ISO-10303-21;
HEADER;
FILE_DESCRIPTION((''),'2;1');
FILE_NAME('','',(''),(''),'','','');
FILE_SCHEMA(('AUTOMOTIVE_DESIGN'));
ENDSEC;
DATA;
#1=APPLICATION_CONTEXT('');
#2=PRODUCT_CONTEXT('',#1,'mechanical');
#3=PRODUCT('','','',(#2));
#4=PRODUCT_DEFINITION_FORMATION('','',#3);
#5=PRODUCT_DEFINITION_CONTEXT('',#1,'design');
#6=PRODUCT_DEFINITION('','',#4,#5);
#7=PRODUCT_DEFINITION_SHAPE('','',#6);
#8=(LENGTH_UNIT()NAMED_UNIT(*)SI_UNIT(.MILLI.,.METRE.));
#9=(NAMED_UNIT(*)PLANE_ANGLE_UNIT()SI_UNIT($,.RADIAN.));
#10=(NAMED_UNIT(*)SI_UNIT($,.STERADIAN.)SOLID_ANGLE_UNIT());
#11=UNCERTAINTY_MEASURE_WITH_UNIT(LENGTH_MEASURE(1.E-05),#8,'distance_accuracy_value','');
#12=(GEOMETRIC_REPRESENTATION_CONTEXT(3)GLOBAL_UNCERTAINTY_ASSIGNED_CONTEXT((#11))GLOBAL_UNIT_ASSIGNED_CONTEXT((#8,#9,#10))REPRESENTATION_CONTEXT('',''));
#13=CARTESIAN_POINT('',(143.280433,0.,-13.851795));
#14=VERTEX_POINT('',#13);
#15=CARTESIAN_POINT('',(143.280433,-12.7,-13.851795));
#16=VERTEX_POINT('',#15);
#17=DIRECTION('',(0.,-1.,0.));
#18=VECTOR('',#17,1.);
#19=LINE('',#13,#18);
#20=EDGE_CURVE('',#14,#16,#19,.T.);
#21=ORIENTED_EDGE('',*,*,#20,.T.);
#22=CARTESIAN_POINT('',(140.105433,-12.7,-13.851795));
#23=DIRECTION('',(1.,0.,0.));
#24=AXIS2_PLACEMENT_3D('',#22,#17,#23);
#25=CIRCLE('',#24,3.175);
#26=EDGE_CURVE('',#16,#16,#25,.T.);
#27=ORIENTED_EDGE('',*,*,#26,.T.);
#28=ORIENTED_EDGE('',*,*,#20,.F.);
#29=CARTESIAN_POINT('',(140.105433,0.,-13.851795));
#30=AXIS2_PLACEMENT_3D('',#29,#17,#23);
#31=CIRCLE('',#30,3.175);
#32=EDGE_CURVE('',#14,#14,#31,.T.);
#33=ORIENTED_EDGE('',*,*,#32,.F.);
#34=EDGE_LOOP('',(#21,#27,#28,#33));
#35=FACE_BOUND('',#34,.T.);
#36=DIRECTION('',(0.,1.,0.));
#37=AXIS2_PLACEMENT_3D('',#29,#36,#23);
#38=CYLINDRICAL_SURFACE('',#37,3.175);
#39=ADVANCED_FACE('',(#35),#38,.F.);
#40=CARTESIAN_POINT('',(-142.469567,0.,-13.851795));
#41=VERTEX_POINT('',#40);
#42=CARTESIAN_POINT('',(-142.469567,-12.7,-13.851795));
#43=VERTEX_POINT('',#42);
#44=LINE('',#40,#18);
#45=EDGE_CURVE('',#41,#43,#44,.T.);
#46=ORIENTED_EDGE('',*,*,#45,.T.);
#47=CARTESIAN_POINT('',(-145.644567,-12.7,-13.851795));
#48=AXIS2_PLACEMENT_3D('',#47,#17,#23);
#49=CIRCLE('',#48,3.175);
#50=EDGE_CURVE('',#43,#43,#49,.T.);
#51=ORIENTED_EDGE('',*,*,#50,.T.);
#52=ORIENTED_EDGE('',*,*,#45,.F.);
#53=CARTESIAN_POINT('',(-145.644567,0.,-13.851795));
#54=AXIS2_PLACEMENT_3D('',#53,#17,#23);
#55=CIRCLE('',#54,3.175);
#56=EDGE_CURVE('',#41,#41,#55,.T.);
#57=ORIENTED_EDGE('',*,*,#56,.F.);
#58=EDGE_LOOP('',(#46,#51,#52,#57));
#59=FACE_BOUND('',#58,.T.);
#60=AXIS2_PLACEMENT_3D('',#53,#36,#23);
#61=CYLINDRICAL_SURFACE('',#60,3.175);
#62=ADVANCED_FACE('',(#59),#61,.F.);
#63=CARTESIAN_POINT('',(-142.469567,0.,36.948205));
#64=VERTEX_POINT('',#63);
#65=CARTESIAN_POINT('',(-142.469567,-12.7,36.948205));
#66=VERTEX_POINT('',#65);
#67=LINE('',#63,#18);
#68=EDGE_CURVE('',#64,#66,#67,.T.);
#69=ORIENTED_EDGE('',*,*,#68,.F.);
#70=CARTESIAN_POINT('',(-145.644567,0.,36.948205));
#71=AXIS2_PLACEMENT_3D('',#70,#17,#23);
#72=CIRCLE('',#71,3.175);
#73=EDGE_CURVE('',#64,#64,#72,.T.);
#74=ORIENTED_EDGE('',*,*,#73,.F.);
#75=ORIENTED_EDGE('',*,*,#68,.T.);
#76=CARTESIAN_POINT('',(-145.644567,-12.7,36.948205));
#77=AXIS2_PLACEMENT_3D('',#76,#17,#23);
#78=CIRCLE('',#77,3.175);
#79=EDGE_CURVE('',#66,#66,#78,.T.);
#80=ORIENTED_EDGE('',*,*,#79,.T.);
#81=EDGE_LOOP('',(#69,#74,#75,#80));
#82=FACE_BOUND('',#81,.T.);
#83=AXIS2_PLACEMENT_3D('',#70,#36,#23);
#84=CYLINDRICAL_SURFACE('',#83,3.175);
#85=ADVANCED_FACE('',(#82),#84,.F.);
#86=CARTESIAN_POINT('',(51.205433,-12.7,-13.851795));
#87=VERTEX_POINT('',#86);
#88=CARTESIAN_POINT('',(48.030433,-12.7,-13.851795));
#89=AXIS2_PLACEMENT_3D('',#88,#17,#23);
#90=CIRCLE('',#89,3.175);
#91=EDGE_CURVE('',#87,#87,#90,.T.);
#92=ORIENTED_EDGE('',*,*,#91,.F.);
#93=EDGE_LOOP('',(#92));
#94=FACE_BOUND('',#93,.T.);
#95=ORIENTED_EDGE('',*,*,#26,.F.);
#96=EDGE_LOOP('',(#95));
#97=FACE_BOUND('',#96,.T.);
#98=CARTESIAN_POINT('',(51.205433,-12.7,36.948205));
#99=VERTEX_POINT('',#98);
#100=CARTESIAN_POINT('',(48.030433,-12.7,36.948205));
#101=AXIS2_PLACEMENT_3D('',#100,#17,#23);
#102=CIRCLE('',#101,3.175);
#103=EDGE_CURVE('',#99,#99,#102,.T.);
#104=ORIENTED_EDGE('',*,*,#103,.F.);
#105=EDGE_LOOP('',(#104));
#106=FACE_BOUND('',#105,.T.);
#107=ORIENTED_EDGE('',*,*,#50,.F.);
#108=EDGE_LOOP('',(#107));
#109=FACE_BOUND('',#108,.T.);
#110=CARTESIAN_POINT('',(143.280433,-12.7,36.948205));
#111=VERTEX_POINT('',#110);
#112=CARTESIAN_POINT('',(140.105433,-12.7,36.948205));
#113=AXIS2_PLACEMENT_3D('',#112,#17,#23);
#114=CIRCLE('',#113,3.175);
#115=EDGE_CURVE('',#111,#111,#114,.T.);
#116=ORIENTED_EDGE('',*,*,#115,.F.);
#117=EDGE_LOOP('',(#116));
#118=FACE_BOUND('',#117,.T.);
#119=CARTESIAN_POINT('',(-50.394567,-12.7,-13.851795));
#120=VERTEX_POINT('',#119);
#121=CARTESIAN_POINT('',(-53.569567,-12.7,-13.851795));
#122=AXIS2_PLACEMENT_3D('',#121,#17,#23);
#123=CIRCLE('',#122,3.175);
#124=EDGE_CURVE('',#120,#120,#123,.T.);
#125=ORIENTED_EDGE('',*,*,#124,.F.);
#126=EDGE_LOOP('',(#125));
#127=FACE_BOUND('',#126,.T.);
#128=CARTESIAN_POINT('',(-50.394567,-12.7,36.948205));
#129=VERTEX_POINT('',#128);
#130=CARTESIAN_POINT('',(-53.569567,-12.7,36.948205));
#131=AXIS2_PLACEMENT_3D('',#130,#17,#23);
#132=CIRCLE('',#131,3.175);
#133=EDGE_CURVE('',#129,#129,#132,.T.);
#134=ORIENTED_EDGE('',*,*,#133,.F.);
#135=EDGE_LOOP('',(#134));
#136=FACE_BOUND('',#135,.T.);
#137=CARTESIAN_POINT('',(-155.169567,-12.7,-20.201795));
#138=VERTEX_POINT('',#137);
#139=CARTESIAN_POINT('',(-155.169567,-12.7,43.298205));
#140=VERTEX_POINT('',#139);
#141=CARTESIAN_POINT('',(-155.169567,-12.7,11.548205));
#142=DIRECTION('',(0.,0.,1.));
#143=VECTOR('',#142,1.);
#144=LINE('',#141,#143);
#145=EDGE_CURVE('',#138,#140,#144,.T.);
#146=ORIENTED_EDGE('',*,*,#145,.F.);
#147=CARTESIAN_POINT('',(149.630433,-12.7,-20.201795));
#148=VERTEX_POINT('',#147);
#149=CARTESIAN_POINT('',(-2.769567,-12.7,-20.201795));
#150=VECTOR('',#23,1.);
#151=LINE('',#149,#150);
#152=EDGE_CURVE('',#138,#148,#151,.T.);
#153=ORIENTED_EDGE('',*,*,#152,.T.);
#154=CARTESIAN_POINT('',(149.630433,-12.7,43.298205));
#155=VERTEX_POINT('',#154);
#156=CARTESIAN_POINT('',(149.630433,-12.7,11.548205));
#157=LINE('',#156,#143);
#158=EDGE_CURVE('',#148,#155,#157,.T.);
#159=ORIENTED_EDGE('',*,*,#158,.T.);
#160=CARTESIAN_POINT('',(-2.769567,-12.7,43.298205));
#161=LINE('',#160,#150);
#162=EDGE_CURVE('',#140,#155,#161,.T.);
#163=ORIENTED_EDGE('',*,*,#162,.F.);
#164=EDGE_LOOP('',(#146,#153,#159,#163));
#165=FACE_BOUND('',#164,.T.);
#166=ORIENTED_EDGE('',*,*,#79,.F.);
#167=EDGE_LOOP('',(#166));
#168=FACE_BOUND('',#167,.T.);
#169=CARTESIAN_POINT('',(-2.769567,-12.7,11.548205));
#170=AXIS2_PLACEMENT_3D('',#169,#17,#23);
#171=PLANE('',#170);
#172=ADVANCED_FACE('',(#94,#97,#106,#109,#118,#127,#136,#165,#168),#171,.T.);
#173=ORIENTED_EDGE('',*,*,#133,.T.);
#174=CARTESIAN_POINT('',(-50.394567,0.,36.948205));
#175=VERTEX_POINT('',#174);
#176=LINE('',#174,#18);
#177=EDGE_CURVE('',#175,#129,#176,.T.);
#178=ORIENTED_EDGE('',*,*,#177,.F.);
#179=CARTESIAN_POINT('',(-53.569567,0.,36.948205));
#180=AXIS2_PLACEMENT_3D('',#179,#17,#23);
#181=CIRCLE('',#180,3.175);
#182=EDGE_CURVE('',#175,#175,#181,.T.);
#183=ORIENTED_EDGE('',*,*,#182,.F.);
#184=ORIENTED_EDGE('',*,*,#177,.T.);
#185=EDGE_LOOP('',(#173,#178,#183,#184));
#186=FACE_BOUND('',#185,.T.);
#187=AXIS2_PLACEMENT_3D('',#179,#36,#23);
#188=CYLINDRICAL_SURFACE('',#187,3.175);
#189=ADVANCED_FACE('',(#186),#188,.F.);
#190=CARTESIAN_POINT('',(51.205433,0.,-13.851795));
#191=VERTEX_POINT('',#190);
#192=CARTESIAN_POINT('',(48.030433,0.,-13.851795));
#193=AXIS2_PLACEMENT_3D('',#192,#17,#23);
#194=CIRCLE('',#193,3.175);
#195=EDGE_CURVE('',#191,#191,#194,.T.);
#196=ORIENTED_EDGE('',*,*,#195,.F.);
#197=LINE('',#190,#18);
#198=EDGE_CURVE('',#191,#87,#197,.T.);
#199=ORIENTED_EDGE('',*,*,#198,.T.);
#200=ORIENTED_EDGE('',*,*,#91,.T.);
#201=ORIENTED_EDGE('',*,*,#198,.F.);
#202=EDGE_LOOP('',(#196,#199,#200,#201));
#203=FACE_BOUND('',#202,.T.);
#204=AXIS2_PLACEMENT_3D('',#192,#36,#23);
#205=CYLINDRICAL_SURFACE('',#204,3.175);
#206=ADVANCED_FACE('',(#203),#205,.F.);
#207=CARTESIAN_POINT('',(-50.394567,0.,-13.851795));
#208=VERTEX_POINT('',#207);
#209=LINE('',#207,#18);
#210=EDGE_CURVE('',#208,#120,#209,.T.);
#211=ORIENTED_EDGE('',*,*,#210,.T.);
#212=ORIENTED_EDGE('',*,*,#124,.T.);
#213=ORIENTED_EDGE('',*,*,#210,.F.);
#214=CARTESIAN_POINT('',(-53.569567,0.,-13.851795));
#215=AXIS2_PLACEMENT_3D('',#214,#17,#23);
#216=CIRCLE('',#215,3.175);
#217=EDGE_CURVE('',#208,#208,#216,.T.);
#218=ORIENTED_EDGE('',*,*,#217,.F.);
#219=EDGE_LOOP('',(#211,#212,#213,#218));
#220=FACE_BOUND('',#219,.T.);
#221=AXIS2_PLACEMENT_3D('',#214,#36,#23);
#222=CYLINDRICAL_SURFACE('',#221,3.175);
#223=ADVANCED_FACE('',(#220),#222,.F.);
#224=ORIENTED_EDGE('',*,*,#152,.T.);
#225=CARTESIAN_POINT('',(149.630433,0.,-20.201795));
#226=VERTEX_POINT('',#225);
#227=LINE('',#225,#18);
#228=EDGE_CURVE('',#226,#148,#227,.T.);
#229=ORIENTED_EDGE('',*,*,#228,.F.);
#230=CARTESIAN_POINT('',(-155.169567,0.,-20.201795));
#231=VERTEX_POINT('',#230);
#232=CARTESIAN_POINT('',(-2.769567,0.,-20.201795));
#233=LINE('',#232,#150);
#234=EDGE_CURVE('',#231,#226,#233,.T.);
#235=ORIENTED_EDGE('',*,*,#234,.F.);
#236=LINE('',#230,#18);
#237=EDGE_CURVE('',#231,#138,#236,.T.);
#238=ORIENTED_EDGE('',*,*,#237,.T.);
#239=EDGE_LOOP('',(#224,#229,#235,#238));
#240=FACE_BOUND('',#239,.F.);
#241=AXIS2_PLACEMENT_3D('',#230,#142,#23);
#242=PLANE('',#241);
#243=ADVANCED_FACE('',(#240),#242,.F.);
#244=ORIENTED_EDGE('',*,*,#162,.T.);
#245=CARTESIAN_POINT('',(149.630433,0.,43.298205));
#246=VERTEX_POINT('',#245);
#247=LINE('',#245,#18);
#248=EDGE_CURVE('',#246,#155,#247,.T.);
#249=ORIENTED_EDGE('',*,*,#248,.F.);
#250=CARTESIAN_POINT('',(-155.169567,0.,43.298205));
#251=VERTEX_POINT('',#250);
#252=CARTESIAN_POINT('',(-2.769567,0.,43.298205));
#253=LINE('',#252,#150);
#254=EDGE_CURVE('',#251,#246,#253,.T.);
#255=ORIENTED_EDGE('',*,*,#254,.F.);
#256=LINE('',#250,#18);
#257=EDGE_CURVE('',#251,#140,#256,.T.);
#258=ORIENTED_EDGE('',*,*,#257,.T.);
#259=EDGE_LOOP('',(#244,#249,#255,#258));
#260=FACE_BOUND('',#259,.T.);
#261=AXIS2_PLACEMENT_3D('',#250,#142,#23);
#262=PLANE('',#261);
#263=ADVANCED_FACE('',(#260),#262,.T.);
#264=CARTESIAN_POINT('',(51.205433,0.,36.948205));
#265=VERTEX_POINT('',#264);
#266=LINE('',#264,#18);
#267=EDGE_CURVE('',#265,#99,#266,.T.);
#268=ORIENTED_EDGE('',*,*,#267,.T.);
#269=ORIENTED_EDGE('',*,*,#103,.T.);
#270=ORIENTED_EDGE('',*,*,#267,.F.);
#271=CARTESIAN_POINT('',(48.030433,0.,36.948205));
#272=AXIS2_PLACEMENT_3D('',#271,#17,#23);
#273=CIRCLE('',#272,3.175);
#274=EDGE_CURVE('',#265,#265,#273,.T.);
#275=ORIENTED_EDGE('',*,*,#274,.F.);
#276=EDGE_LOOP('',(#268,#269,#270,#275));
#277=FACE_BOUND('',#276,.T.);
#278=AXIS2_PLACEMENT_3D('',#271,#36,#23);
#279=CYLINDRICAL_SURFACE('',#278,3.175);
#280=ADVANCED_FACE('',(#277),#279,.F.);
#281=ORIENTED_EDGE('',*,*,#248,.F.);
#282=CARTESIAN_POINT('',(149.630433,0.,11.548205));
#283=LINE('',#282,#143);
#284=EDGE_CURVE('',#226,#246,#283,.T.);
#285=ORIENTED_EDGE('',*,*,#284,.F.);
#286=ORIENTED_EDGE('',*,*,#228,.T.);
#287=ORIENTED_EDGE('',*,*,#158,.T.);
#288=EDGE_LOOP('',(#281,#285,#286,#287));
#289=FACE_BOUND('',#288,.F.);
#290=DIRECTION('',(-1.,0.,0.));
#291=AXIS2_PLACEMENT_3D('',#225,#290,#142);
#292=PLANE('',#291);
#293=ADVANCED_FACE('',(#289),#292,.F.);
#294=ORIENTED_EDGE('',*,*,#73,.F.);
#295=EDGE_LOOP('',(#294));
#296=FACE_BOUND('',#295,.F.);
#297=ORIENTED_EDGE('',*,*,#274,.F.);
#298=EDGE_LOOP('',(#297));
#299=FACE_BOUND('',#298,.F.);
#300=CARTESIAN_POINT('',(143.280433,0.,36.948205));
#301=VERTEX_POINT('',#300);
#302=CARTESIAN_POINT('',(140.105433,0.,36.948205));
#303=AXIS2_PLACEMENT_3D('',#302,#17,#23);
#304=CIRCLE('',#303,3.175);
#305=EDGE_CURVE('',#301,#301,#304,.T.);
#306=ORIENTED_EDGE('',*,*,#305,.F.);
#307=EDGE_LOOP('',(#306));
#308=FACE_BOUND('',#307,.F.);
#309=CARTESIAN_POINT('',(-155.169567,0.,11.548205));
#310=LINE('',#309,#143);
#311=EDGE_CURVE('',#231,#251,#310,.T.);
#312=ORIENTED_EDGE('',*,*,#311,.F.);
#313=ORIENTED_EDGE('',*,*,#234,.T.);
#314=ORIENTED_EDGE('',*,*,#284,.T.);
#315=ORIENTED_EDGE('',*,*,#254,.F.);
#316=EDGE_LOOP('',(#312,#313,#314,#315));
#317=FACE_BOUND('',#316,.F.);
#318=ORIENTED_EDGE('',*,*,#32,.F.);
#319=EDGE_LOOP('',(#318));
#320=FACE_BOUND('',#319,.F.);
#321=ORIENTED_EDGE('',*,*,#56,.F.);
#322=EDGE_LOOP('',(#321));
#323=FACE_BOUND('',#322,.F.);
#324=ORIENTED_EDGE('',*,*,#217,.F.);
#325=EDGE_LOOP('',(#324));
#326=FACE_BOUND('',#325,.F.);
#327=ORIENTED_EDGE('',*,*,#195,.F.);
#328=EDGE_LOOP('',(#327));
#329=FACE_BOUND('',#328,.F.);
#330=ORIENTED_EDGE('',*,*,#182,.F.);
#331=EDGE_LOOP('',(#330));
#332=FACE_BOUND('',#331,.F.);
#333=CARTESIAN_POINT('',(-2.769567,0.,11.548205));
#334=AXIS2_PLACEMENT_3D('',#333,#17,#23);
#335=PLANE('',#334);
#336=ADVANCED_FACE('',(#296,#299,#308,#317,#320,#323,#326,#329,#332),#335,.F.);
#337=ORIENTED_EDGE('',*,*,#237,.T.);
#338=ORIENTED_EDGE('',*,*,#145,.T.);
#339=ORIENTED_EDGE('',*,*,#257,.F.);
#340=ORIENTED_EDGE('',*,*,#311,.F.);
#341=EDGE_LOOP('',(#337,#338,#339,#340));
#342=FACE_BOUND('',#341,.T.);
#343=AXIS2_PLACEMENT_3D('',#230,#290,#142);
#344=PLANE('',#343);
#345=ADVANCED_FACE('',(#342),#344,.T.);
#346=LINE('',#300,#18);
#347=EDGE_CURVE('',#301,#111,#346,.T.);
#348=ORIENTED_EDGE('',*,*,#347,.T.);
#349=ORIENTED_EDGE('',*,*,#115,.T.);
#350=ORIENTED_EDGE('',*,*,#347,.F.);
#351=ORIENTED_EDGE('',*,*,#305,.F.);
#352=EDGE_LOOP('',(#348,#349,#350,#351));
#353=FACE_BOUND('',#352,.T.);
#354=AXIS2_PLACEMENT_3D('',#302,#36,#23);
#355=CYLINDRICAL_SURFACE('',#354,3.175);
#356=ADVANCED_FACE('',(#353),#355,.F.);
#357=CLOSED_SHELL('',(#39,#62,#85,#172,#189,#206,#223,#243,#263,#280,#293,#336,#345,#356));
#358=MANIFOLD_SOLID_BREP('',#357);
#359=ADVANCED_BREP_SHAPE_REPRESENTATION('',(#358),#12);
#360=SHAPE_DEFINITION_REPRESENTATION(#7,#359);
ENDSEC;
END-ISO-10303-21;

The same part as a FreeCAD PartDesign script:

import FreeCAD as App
import Part
import Sketcher
from FreeCAD import Vector
Q = App.Units.Quantity


def add_polygon(sketch, points):
    """Adds a closed chain of lines whose ends are joined by coincident constraints."""
    first, n = sketch.GeometryCount, len(points)
    for a, b in zip(points, points[1:] + points[:1]):
        sketch.addGeometry(Part.LineSegment(App.Vector(*a, 0), App.Vector(*b, 0)), False)
    for i in range(n):
        sketch.addConstraint(Sketcher.Constraint("Coincident", first + i, 2, first + (i + 1) % n, 1))

doc = App.newDocument("Part")
body = doc.addObject("PartDesign::Body", "Body")

# Sketch on XZ plane
sketch1 = body.newObject("Sketcher::SketchObject", "Sketch")
sketch1.AttachmentSupport = (doc.getObject("XZ_Plane"), [""])
sketch1.MapMode = "FlatFace"
add_polygon(sketch1, [(-155.169567, 43.298205), (-155.169567, -20.201795), (149.630433, -20.201795), (149.630433, 43.298205)])  # lines 0-3
sketch1.addGeometry(Part.Circle(Vector(-145.644567, -13.851795, 0), Vector(0, 0, 1), 3.175), False)  # 4
sketch1.addGeometry(Part.Circle(Vector(-53.569567, -13.851795, 0), Vector(0, 0, 1), 3.175), False)  # 5
sketch1.addGeometry(Part.Circle(Vector(48.030433, -13.851795, 0), Vector(0, 0, 1), 3.175), False)  # 6
sketch1.addGeometry(Part.Circle(Vector(140.105433, -13.851795, 0), Vector(0, 0, 1), 3.175), False)  # 7
sketch1.addGeometry(Part.Circle(Vector(-145.644567, 36.948205, 0), Vector(0, 0, 1), 3.175), False)  # 8
sketch1.addGeometry(Part.Circle(Vector(-53.569567, 36.948205, 0), Vector(0, 0, 1), 3.175), False)  # 9
sketch1.addGeometry(Part.Circle(Vector(48.030433, 36.948205, 0), Vector(0, 0, 1), 3.175), False)  # 10
sketch1.addGeometry(Part.Circle(Vector(140.105433, 36.948205, 0), Vector(0, 0, 1), 3.175), False)  # 11
sketch1.addConstraint(Sketcher.Constraint("Vertical", 0))
sketch1.addConstraint(Sketcher.Constraint("Horizontal", 1))
sketch1.addConstraint(Sketcher.Constraint("Vertical", 2))
sketch1.addConstraint(Sketcher.Constraint("Horizontal", 3))
sketch1.addConstraint(Sketcher.Constraint("Equal", 4, 5))
sketch1.addConstraint(Sketcher.Constraint("Equal", 5, 6))
sketch1.addConstraint(Sketcher.Constraint("Equal", 6, 7))
sketch1.addConstraint(Sketcher.Constraint("Equal", 7, 8))
sketch1.addConstraint(Sketcher.Constraint("Equal", 8, 9))
sketch1.addConstraint(Sketcher.Constraint("Equal", 9, 10))
sketch1.addConstraint(Sketcher.Constraint("Equal", 10, 11))
sketch1.addConstraint(Sketcher.Constraint("Horizontal", 4, 3, 5, 3))
sketch1.addConstraint(Sketcher.Constraint("Horizontal", 5, 3, 6, 3))
sketch1.addConstraint(Sketcher.Constraint("Horizontal", 6, 3, 7, 3))
sketch1.addConstraint(Sketcher.Constraint("Horizontal", 8, 3, 9, 3))
sketch1.addConstraint(Sketcher.Constraint("Horizontal", 9, 3, 10, 3))
sketch1.addConstraint(Sketcher.Constraint("Horizontal", 10, 3, 11, 3))
sketch1.addConstraint(Sketcher.Constraint("Vertical", 4, 3, 8, 3))
sketch1.addConstraint(Sketcher.Constraint("Vertical", 5, 3, 9, 3))
sketch1.addConstraint(Sketcher.Constraint("Vertical", 6, 3, 10, 3))
sketch1.addConstraint(Sketcher.Constraint("Vertical", 7, 3, 11, 3))
sketch1.addConstraint(Sketcher.Constraint("Diameter", 4, Q("0.25 in")))
sketch1.addConstraint(Sketcher.Constraint("DistanceX", 1, 1, 1, 2, Q("12 in")))
sketch1.addConstraint(Sketcher.Constraint("DistanceY", 0, 2, 0, 1, Q("2.5 in")))
sketch1.addConstraint(Sketcher.Constraint("DistanceX", 5, 3, 6, 3, Q("4 in")))
sketch1.addConstraint(Sketcher.Constraint("DistanceY", 4, 3, 8, 3, Q("2 in")))
sketch1.addConstraint(Sketcher.Constraint("DistanceX", 0, 2, 5, 3, Q("4 in")))
sketch1.addConstraint(Sketcher.Constraint("DistanceX", 4, 3, 7, 3, Q("11.25 in")))
sketch1.addConstraint(Sketcher.Constraint("DistanceY", 0, 2, 4, 3, Q("0.25 in")))
sketch1.addConstraint(Sketcher.Constraint("DistanceX", 4, 3, 5, 3, Q("3.625 in")))
sketch1.addConstraint(Sketcher.Constraint("DistanceX", 4, 3, -1, 1, Q("145.644567 mm")))
sketch1.addConstraint(Sketcher.Constraint("DistanceY", 4, 3, -1, 1, Q("13.851795 mm")))
pad1 = body.newObject("PartDesign::Pad", "Pad")
pad1.Profile = sketch1
pad1.Length = Q("0.5 in")

doc.recompute()
